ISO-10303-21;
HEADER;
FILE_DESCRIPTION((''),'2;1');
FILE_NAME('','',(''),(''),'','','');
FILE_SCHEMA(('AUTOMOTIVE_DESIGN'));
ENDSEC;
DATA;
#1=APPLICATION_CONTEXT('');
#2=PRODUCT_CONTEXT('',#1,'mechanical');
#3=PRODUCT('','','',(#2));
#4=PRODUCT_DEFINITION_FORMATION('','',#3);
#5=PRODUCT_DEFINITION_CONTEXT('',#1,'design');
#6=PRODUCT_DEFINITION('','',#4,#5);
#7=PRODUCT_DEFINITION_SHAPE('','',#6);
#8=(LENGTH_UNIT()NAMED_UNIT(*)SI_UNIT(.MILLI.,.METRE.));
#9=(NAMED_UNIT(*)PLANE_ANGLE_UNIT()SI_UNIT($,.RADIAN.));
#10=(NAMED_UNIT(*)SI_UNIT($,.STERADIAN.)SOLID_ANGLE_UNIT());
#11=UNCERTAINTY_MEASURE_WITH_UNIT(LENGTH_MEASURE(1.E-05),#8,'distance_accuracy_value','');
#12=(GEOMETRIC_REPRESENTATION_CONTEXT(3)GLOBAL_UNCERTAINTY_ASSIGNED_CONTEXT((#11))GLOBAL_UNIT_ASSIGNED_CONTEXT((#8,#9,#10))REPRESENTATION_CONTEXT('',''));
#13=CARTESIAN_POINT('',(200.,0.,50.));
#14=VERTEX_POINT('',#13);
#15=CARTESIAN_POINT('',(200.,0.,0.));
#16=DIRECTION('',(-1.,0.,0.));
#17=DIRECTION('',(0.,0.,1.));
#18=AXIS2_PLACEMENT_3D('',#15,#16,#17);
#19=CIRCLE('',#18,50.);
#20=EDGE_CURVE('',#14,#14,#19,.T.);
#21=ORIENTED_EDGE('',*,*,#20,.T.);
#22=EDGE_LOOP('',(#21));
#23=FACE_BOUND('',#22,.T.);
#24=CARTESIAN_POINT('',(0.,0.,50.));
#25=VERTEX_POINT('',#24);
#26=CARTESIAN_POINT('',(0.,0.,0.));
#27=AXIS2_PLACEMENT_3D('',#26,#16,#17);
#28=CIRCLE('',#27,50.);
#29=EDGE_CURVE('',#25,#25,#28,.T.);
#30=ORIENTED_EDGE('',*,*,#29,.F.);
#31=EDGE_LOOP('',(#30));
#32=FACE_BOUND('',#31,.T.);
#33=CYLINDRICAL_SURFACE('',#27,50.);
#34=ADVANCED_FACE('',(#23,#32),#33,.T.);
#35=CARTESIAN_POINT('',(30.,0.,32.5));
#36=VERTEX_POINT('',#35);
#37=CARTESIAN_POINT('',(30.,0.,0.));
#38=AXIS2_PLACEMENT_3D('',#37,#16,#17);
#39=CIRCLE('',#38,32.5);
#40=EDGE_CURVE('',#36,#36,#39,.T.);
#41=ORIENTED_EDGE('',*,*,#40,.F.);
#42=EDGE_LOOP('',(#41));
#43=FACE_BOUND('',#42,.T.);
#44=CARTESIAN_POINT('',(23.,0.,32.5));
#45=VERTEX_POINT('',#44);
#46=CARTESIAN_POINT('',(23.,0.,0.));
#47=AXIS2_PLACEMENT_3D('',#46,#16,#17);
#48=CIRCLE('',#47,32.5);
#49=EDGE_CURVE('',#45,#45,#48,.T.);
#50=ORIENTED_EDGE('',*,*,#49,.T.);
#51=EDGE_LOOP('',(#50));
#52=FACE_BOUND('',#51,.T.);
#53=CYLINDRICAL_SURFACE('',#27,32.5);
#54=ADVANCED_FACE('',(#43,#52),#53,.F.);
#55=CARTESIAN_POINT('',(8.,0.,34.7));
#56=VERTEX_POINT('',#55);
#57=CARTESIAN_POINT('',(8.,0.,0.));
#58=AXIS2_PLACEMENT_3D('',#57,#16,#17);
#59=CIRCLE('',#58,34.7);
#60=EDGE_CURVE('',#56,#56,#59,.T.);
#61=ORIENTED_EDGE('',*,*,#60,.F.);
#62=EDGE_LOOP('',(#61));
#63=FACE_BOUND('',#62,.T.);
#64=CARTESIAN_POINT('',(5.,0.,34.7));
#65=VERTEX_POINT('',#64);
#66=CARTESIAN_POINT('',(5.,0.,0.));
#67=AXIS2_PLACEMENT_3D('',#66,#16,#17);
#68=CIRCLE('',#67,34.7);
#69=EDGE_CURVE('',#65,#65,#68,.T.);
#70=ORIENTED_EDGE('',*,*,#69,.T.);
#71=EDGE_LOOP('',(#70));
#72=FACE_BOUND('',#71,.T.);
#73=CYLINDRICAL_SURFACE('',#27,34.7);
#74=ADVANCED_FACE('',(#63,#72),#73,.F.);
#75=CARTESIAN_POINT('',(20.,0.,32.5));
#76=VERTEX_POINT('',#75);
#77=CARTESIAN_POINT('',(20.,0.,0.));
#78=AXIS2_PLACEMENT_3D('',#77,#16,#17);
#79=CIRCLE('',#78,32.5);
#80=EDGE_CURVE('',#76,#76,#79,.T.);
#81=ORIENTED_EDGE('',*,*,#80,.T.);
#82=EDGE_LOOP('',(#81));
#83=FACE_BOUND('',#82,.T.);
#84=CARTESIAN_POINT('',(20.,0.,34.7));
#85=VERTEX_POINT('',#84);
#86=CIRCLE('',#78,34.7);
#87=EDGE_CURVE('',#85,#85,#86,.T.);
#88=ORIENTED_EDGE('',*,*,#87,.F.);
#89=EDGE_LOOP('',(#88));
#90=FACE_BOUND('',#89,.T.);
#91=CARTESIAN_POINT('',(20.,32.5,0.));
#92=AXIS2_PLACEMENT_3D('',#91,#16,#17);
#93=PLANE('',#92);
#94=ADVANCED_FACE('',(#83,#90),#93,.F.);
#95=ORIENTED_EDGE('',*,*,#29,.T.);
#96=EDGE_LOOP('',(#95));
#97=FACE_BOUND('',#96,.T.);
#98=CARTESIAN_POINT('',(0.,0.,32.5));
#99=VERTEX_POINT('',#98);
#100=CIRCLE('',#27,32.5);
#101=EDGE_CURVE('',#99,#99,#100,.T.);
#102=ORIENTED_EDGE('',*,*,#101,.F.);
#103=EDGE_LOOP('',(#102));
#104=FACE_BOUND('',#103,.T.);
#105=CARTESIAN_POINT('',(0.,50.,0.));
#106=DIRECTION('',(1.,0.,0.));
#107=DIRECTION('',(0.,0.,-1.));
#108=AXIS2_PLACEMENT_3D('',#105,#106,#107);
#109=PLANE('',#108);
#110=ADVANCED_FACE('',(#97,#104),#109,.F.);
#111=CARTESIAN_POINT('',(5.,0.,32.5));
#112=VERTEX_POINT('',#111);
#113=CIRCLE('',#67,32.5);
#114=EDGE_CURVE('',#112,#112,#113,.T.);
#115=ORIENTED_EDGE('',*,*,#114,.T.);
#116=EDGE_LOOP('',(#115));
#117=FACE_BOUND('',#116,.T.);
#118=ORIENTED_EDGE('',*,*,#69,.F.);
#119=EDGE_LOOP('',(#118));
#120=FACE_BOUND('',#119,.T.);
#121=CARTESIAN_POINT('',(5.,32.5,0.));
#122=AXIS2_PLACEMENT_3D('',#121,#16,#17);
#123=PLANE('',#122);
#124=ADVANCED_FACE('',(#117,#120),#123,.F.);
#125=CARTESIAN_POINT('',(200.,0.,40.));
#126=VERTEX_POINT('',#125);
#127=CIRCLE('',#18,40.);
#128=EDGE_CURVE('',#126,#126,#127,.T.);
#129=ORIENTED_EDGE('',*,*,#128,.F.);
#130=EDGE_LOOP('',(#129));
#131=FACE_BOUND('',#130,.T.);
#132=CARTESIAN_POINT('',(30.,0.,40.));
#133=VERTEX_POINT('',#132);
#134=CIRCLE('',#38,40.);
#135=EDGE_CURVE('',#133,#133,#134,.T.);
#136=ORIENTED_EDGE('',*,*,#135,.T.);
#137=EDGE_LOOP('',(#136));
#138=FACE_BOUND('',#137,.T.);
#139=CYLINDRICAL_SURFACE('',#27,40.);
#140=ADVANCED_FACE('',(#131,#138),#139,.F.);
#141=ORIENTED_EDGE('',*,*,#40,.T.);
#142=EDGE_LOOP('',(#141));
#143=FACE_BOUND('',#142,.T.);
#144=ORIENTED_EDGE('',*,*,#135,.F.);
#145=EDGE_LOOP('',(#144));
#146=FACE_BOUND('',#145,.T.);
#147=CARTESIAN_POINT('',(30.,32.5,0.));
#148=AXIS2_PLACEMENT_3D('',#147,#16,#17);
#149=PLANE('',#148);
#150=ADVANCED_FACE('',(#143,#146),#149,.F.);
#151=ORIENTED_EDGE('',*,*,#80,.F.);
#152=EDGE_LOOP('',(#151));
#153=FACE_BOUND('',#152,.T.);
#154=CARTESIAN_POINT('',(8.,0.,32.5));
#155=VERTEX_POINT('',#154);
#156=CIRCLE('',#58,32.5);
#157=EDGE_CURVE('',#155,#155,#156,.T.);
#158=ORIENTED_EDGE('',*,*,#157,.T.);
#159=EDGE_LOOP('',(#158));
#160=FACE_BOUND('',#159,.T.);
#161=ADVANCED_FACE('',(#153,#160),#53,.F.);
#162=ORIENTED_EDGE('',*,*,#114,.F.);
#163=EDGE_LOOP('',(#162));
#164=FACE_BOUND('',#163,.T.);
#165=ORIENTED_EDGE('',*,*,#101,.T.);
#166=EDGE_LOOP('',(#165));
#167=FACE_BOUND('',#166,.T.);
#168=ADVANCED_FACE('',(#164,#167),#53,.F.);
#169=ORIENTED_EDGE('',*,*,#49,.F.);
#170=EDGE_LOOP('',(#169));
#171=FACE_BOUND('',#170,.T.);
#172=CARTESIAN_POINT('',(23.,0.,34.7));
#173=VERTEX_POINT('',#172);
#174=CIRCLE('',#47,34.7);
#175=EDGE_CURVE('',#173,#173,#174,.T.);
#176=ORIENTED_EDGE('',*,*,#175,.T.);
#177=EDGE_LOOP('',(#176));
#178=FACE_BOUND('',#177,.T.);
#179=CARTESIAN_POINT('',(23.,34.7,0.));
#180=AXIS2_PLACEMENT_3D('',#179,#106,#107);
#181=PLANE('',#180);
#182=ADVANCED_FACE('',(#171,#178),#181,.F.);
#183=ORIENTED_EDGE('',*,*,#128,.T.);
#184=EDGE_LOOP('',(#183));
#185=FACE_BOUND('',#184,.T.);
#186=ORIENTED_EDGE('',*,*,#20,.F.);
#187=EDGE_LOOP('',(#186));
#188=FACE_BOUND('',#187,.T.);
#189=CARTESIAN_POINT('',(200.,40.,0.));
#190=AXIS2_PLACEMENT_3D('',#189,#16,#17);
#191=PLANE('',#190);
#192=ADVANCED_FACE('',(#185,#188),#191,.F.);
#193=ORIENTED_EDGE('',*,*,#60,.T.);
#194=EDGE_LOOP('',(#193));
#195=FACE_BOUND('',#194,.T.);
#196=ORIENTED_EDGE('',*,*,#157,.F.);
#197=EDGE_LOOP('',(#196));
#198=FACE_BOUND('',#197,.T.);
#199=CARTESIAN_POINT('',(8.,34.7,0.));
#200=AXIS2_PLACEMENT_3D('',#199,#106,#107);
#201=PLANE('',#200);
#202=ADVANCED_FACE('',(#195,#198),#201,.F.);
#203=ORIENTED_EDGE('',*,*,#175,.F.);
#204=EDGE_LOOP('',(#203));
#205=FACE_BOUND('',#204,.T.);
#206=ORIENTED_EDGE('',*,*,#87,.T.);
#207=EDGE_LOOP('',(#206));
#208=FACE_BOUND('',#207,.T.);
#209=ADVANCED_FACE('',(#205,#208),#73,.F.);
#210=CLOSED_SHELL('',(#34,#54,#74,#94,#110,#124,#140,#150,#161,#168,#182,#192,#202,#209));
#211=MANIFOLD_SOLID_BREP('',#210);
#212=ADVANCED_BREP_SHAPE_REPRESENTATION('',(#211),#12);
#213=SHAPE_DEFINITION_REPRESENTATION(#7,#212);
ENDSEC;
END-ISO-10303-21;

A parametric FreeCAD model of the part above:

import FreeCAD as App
import Part
import Sketcher


def add_polygon(sketch, points):
    """Adds a closed chain of lines whose ends are joined by coincident constraints."""
    first, n = sketch.GeometryCount, len(points)
    for a, b in zip(points, points[1:] + points[:1]):
        sketch.addGeometry(Part.LineSegment(App.Vector(*a, 0), App.Vector(*b, 0)), False)
    for i in range(n):
        sketch.addConstraint(Sketcher.Constraint("Coincident", first + i, 2, first + (i + 1) % n, 1))

doc = App.newDocument("Part")
body = doc.addObject("PartDesign::Body", "Body")

# Sketch on XY plane
sketch1 = body.newObject("Sketcher::SketchObject", "Sketch")
sketch1.AttachmentSupport = (doc.getObject("XY_Plane"), [""])
sketch1.MapMode = "FlatFace"
add_polygon(sketch1, [(0, 50), (0, 32.5), (5, 32.5), (5, 34.7), (8, 34.7), (8, 32.5), (20, 32.5), (20, 34.7), (23, 34.7), (23, 32.5), (30, 32.5), (30, 40), (200, 40), (200, 50)])  # lines 0-13
sketch1.addConstraint([
    Sketcher.Constraint("Vertical", 0),
    Sketcher.Constraint("Horizontal", 1),
    Sketcher.Constraint("Vertical", 2),
    Sketcher.Constraint("Horizontal", 3),
    Sketcher.Constraint("Vertical", 4),
    Sketcher.Constraint("Horizontal", 5),
    Sketcher.Constraint("Vertical", 6),
    Sketcher.Constraint("Horizontal", 7),
    Sketcher.Constraint("Vertical", 8),
    Sketcher.Constraint("Horizontal", 9),
    Sketcher.Constraint("Vertical", 10),
    Sketcher.Constraint("Horizontal", 11),
    Sketcher.Constraint("Vertical", 12),
    Sketcher.Constraint("Horizontal", 13),
    Sketcher.Constraint("PointOnObject", 0, 2, -2),
    Sketcher.Constraint("Horizontal", 1, 2, 4, 2),
    Sketcher.Constraint("Horizontal", 3, 2, 6, 2),
    Sketcher.Constraint("Horizontal", 5, 2, 8, 2),
    Sketcher.Constraint("Equal", 3, 7),
    Sketcher.Constraint("DistanceX", 1, 1, 1, 2, 5.0),
    Sketcher.Constraint("DistanceX", 3, 1, 3, 2, 3.0),
    Sketcher.Constraint("DistanceX", 5, 1, 5, 2, 12.0),
    Sketcher.Constraint("DistanceX", 9, 1, 9, 2, 7.0),
    Sketcher.Constraint("DistanceX", 11, 1, 11, 2, 170.0),
    Sketcher.Constraint("DistanceY", 12, 1, 12, 2, 10.0),
    Sketcher.Constraint("DistanceY", 0, 2, 0, 1, 17.5),
    Sketcher.Constraint("DistanceY", 2, 1, 2, 2, 2.2),
    Sketcher.Constraint("DistanceY", -1, 1, 10, 2, 40.0),
])
revolution = body.newObject("PartDesign::Revolution", "Revolution")
revolution.Profile = sketch1
revolution.ReferenceAxis = (sketch1, ["H_Axis"])
revolution.Angle = 360

doc.recompute()
